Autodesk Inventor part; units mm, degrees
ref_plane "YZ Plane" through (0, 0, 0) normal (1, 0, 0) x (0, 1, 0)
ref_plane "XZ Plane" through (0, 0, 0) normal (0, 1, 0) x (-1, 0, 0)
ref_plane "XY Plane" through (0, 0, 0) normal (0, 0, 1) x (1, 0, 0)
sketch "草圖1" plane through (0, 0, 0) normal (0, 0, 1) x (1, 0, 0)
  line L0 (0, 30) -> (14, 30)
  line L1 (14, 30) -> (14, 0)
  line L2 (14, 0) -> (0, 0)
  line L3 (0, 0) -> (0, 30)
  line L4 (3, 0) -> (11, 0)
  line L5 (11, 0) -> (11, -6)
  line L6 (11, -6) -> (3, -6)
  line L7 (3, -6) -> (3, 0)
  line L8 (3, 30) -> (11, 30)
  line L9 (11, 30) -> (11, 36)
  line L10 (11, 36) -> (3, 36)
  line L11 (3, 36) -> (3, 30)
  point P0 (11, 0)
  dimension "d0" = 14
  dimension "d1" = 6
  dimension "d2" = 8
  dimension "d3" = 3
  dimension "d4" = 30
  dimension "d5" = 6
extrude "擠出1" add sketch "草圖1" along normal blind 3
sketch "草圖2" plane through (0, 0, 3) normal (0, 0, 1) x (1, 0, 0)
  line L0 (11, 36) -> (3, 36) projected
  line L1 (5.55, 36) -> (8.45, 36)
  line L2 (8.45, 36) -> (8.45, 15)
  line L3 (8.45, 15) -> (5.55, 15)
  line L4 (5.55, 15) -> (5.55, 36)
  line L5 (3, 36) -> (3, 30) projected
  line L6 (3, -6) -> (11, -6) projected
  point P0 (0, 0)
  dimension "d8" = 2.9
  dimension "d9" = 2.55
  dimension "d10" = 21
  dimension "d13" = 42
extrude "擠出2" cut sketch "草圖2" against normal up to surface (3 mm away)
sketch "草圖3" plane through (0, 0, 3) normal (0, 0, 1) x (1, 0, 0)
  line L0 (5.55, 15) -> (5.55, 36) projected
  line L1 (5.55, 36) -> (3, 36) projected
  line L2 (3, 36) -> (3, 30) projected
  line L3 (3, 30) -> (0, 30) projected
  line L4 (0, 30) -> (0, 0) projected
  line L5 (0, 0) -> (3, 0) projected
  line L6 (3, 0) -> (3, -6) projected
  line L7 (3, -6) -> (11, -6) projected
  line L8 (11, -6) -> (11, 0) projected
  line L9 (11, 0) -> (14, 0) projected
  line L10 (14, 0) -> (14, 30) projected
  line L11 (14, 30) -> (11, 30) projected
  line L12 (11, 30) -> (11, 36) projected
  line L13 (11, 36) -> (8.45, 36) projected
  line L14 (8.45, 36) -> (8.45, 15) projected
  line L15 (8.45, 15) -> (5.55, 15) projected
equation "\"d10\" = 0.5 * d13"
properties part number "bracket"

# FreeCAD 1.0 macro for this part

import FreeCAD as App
import Part
import Sketcher

doc = App.newDocument("Part")
body = doc.addObject("PartDesign::Body", "Body")

# Sketch on XY plane
sketch1 = doc.addObject("Sketcher::SketchObject", "Sketch")
body.addObject(sketch1)
sketch1.AttachmentSupport = (doc.XY_Plane, [""])
sketch1.MapMode = "FlatFace"
sketch1.addGeometry([
    Part.LineSegment(App.Vector(3, 30, 0), App.Vector(0, 30, 0)),  # 0
    Part.LineSegment(App.Vector(0, 30, 0), App.Vector(0, 0, 0)),  # 1
    Part.LineSegment(App.Vector(0, 0, 0), App.Vector(3, 0, 0)),  # 2
    Part.LineSegment(App.Vector(3, 0, 0), App.Vector(3, -6, 0)),  # 3
    Part.LineSegment(App.Vector(3, -6, 0), App.Vector(11, -6, 0)),  # 4
    Part.LineSegment(App.Vector(11, -6, 0), App.Vector(11, 0, 0)),  # 5
    Part.LineSegment(App.Vector(11, 0, 0), App.Vector(14, 0, 0)),  # 6
    Part.LineSegment(App.Vector(14, 0, 0), App.Vector(14, 30, 0)),  # 7
    Part.LineSegment(App.Vector(14, 30, 0), App.Vector(11, 30, 0)),  # 8
    Part.LineSegment(App.Vector(11, 30, 0), App.Vector(11, 36, 0)),  # 9
    Part.LineSegment(App.Vector(11, 36, 0), App.Vector(3, 36, 0)),  # 10
    Part.LineSegment(App.Vector(3, 36, 0), App.Vector(3, 30, 0)),  # 11
], False)
sketch1.addConstraint([
    Sketcher.Constraint("Coincident", 0, 2, 1, 1),
    Sketcher.Constraint("Coincident", 1, 2, 2, 1),
    Sketcher.Constraint("Coincident", 2, 2, 3, 1),
    Sketcher.Constraint("Coincident", 3, 2, 4, 1),
    Sketcher.Constraint("Coincident", 4, 2, 5, 1),
    Sketcher.Constraint("Coincident", 5, 2, 6, 1),
    Sketcher.Constraint("Coincident", 6, 2, 7, 1),
    Sketcher.Constraint("Coincident", 7, 2, 8, 1),
    Sketcher.Constraint("Coincident", 8, 2, 9, 1),
    Sketcher.Constraint("Coincident", 9, 2, 10, 1),
    Sketcher.Constraint("Coincident", 10, 2, 11, 1),
    Sketcher.Constraint("Coincident", 11, 2, 0, 1),
    Sketcher.Constraint("Horizontal", 0),
    Sketcher.Constraint("Vertical", 1),
    Sketcher.Constraint("Horizontal", 2),
    Sketcher.Constraint("Vertical", 3),
    Sketcher.Constraint("Horizontal", 4),
    Sketcher.Constraint("Vertical", 5),
    Sketcher.Constraint("Horizontal", 6),
    Sketcher.Constraint("Vertical", 7),
    Sketcher.Constraint("Horizontal", 8),
    Sketcher.Constraint("Vertical", 9),
    Sketcher.Constraint("Horizontal", 10),
    Sketcher.Constraint("Vertical", 11),
    Sketcher.Constraint("Coincident", 1, 2, -1, 1),
    Sketcher.Constraint("PointOnObject", 5, 2, -1),
    Sketcher.Constraint("Horizontal", 0, 2, 7, 2),
    Sketcher.Constraint("Vertical", 5, 2, 8, 2),
    Sketcher.Constraint("Vertical", 3, 2, 10, 2),
    Sketcher.Constraint("Equal", 2, 6),
    Sketcher.Constraint("Equal", 5, 9),
    Sketcher.Constraint("DistanceX", 0, 2, 0, 1, 3.0),
    Sketcher.Constraint("DistanceX", 4, 1, 4, 2, 8.0),
    Sketcher.Constraint("DistanceY", 1, 2, 1, 1, 30.0),
    Sketcher.Constraint("DistanceY", 3, 2, 3, 1, 6.0),
])
pad1 = doc.addObject("PartDesign::Pad", "Pad")
body.addObject(pad1)
pad1.Profile = sketch1
pad1.Length = 3

# Sketch on XY plane
sketch2 = doc.addObject("Sketcher::SketchObject", "Sketch001")
body.addObject(sketch2)
sketch2.AttachmentSupport = (doc.XY_Plane, [""])
sketch2.MapMode = "FlatFace"
sketch2.AttachmentOffset = App.Placement(App.Vector(0, 0, 3), App.Rotation())
sketch2.addGeometry([
    Part.LineSegment(App.Vector(8.4, 15, 0), App.Vector(8.4, 36, 0)),
    Part.LineSegment(App.Vector(8.4, 36, 0), App.Vector(5.5, 36, 0)),
    Part.LineSegment(App.Vector(5.5, 36, 0), App.Vector(5.5, 15, 0)),
    Part.LineSegment(App.Vector(5.5, 15, 0), App.Vector(8.4, 15, 0)),
], False)
sketch2.addConstraint([
    Sketcher.Constraint("Coincident", 0, 2, 1, 1),
    Sketcher.Constraint("Coincident", 1, 2, 2, 1),
    Sketcher.Constraint("Coincident", 2, 2, 3, 1),
    Sketcher.Constraint("Coincident", 3, 2, 0, 1),
    Sketcher.Constraint("Vertical", 0),
    Sketcher.Constraint("Horizontal", 1),
    Sketcher.Constraint("Vertical", 2),
    Sketcher.Constraint("Horizontal", 3),
    Sketcher.Constraint("DistanceY", 0, 1, 0, 2, 21.0),
    Sketcher.Constraint("DistanceX", 1, 2, 1, 1, 2.9),
    Sketcher.Constraint("DistanceY", -1, 1, 0, 2, 36.0),
    Sketcher.Constraint("DistanceX", -1, 1, 0, 2, 8.45),
])
pocket1 = doc.addObject("PartDesign::Pocket", "Pocket")
body.addObject(pocket1)
pocket1.Profile = sketch2
pocket1.Length = 3

doc.recompute()
